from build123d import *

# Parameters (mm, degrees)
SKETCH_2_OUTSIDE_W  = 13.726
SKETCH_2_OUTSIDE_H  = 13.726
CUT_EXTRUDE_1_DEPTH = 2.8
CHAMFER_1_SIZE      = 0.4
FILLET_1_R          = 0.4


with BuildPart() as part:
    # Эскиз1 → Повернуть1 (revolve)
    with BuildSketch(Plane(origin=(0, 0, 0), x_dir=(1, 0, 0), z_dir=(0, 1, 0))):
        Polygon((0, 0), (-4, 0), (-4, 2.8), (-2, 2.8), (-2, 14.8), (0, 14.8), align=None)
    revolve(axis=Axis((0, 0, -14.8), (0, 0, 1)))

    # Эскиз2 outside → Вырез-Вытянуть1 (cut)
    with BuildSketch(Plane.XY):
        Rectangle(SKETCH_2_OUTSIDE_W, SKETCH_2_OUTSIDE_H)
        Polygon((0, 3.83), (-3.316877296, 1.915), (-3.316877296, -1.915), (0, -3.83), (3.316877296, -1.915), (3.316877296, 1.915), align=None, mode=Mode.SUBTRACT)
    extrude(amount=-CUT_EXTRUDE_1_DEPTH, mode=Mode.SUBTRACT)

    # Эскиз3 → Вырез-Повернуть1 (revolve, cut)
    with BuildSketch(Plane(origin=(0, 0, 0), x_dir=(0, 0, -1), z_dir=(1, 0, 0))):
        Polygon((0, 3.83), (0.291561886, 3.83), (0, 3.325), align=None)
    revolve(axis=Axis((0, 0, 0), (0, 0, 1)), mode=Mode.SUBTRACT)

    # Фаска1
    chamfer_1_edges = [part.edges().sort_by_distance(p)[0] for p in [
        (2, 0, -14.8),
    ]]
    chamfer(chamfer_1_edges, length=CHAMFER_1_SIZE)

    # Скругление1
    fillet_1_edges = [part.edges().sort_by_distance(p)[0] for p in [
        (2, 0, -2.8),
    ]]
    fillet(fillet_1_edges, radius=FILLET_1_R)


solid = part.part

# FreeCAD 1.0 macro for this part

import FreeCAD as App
import Part
import Sketcher
Q = App.Units.Quantity


def edges_at(feature, points):
    """Names of the edges that pass closest to the given points."""
    edges = feature.Shape.Edges
    near = lambda p: min(range(len(edges)), key=lambda i: edges[i].distToShape(Part.Vertex(*p))[0])
    return sorted({f"Edge{near(p) + 1}" for p in points})

doc = App.newDocument("Part")
body = doc.addObject("PartDesign::Body", "Body")

sketch1 = doc.addObject("Sketcher::SketchObject", "Sketch")
body.addObject(sketch1)
sketch1.AttachmentSupport = (doc.XZ_Plane, [""])
sketch1.MapMode = "FlatFace"
sketch1.addGeometry(Part.LineSegment(App.Vector(-4, 0, 0), App.Vector(0, 0, 0)), False)
sketch1.addGeometry(Part.LineSegment(App.Vector(0, 0, 0), App.Vector(0, -14.8, 0)), False)
sketch1.addGeometry(Part.LineSegment(App.Vector(0, -14.8, 0), App.Vector(-2, -14.8, 0)), False)
sketch1.addGeometry(Part.LineSegment(App.Vector(-2, -14.8, 0), App.Vector(-2, -2.8, 0)), False)
sketch1.addGeometry(Part.LineSegment(App.Vector(-2, -2.8, 0), App.Vector(-4, -2.8, 0)), False)
sketch1.addGeometry(Part.LineSegment(App.Vector(-4, -2.8, 0), App.Vector(-4, 0, 0)), False)
sketch1.addConstraint(Sketcher.Constraint("Coincident", 0, 2, 1, 1))
sketch1.addConstraint(Sketcher.Constraint("Coincident", 1, 2, 2, 1))
sketch1.addConstraint(Sketcher.Constraint("Coincident", 2, 2, 3, 1))
sketch1.addConstraint(Sketcher.Constraint("Coincident", 3, 2, 4, 1))
sketch1.addConstraint(Sketcher.Constraint("Coincident", 4, 2, 5, 1))
sketch1.addConstraint(Sketcher.Constraint("Coincident", 5, 2, 0, 1))
sketch1.addConstraint(Sketcher.Constraint("Horizontal", 0))
sketch1.addConstraint(Sketcher.Constraint("Vertical", 1))
sketch1.addConstraint(Sketcher.Constraint("Horizontal", 2))
sketch1.addConstraint(Sketcher.Constraint("Vertical", 3))
sketch1.addConstraint(Sketcher.Constraint("Horizontal", 4))
sketch1.addConstraint(Sketcher.Constraint("Vertical", 5))
sketch1.addConstraint(Sketcher.Constraint("Coincident", 0, 2, -1, 1))
sketch1.addConstraint(Sketcher.Constraint("Equal", 2, 4))
sketch1.addConstraint(Sketcher.Constraint("DistanceX", 0, 1, 0, 2, Q("4 mm")))
sketch1.addConstraint(Sketcher.Constraint("DistanceY", 3, 1, 3, 2, Q("12 mm")))
sketch1.addConstraint(Sketcher.Constraint("DistanceY", 1, 2, 1, 1, Q("14.8 mm")))
revolution = doc.addObject("PartDesign::Revolution", "Revolution")
body.addObject(revolution)
revolution.Profile = sketch1
revolution.ReferenceAxis = (sketch1, ["V_Axis"])
revolution.Angle = 360

sketch2 = doc.addObject("Sketcher::SketchObject", "Sketch001")
body.addObject(sketch2)
sketch2.AttachmentSupport = (doc.XY_Plane, [""])
sketch2.MapMode = "FlatFace"
sketch2.addGeometry(Part.LineSegment(App.Vector(-6.863, 6.863, 0), App.Vector(-6.863, -6.863, 0)), False)
sketch2.addGeometry(Part.LineSegment(App.Vector(-6.863, -6.863, 0), App.Vector(6.863, -6.863, 0)), False)
sketch2.addGeometry(Part.LineSegment(App.Vector(6.863, -6.863, 0), App.Vector(6.863, 6.863, 0)), False)
sketch2.addGeometry(Part.LineSegment(App.Vector(6.863, 6.863, 0), App.Vector(-6.863, 6.863, 0)), False)
sketch2.addGeometry(Part.LineSegment(App.Vector(-3.316877, 1.915, 0), App.Vector(0, 3.83, 0)), False)
sketch2.addGeometry(Part.LineSegment(App.Vector(0, 3.83, 0), App.Vector(3.316877, 1.915, 0)), False)
sketch2.addGeometry(Part.LineSegment(App.Vector(3.316877, 1.915, 0), App.Vector(3.316877, -1.915, 0)), False)
sketch2.addGeometry(Part.LineSegment(App.Vector(3.316877, -1.915, 0), App.Vector(0, -3.83, 0)), False)
sketch2.addGeometry(Part.LineSegment(App.Vector(0, -3.83, 0), App.Vector(-3.316877, -1.915, 0)), False)
sketch2.addGeometry(Part.LineSegment(App.Vector(-3.316877, -1.915, 0), App.Vector(-3.316877, 1.915, 0)), False)
sketch2.addConstraint(Sketcher.Constraint("Coincident", 0, 2, 1, 1))
sketch2.addConstraint(Sketcher.Constraint("Coincident", 1, 2, 2, 1))
sketch2.addConstraint(Sketcher.Constraint("Coincident", 2, 2, 3, 1))
sketch2.addConstraint(Sketcher.Constraint("Coincident", 3, 2, 0, 1))
sketch2.addConstraint(Sketcher.Constraint("Coincident", 4, 2, 5, 1))
sketch2.addConstraint(Sketcher.Constraint("Coincident", 5, 2, 6, 1))
sketch2.addConstraint(Sketcher.Constraint("Coincident", 6, 2, 7, 1))
sketch2.addConstraint(Sketcher.Constraint("Coincident", 7, 2, 8, 1))
sketch2.addConstraint(Sketcher.Constraint("Coincident", 8, 2, 9, 1))
sketch2.addConstraint(Sketcher.Constraint("Coincident", 9, 2, 4, 1))
sketch2.addConstraint(Sketcher.Constraint("Vertical", 0))
sketch2.addConstraint(Sketcher.Constraint("Horizontal", 1))
sketch2.addConstraint(Sketcher.Constraint("Vertical", 2))
sketch2.addConstraint(Sketcher.Constraint("Horizontal", 3))
sketch2.addConstraint(Sketcher.Constraint("Vertical", 6))
sketch2.addConstraint(Sketcher.Constraint("Vertical", 9))
sketch2.addConstraint(Sketcher.Constraint("Symmetric", 0, 2, 2, 2, -1, 1))
sketch2.addConstraint(Sketcher.Constraint("Symmetric", 4, 2, 7, 2, -1, 1))
sketch2.addConstraint(Sketcher.Constraint("Symmetric", 5, 2, 8, 2, -1, 1))
sketch2.addConstraint(Sketcher.Constraint("PointOnObject", 4, 2, -2))
sketch2.addConstraint(Sketcher.Constraint("Parallel", 4, 7))
sketch2.addConstraint(Sketcher.Constraint("Horizontal", 6, 2, 8, 2))
sketch2.addConstraint(Sketcher.Constraint("Equal", 3, 0))
sketch2.addConstraint(Sketcher.Constraint("Angle", 4, Q("30 deg")))
sketch2.addConstraint(Sketcher.Constraint("DistanceY", 6, 2, 6, 1, Q("3.83 mm")))
sketch2.addConstraint(Sketcher.Constraint("Distance", 4, Q("3.83 mm")))
sketch2.addConstraint(Sketcher.Constraint("DistanceX", 1, 1, 1, 2, Q("13.726 mm")))
pocket1 = doc.addObject("PartDesign::Pocket", "Pocket")
body.addObject(pocket1)
pocket1.Profile = sketch2
pocket1.Length = 2.8

sketch3 = doc.addObject("Sketcher::SketchObject", "Sketch002")
body.addObject(sketch3)
sketch3.AttachmentSupport = (doc.YZ_Plane, [""])
sketch3.MapMode = "FlatFace"
sketch3.addGeometry(Part.LineSegment(App.Vector(3.83, -0.291562, 0), App.Vector(3.83, 0, 0)), False)
sketch3.addGeometry(Part.LineSegment(App.Vector(3.83, 0, 0), App.Vector(3.325, 0, 0)), False)
sketch3.addGeometry(Part.LineSegment(App.Vector(3.325, 0, 0), App.Vector(3.83, -0.291562, 0)), False)
sketch3.addConstraint(Sketcher.Constraint("Coincident", 0, 2, 1, 1))
sketch3.addConstraint(Sketcher.Constraint("Coincident", 1, 2, 2, 1))
sketch3.addConstraint(Sketcher.Constraint("Coincident", 2, 2, 0, 1))
sketch3.addConstraint(Sketcher.Constraint("Vertical", 0))
sketch3.addConstraint(Sketcher.Constraint("Horizontal", 1))
sketch3.addConstraint(Sketcher.Constraint("PointOnObject", 0, 2, -1))
sketch3.addConstraint(Sketcher.Constraint("Angle", 2, Q("-30 deg")))
sketch3.addConstraint(Sketcher.Constraint("DistanceX", 1, 2, 1, 1, Q("0.505 mm")))
sketch3.addConstraint(Sketcher.Constraint("DistanceX", -1, 1, 0, 2, Q("3.83 mm")))
groove = doc.addObject("PartDesign::Groove", "Groove")
body.addObject(groove)
groove.Profile = sketch3
groove.ReferenceAxis = (sketch3, ["V_Axis"])
groove.Angle = 360
doc.recompute()

chamfer = doc.addObject("PartDesign::Chamfer", "Chamfer")
body.addObject(chamfer)
chamfer.Base = (groove, edges_at(groove, [(2, 0, -14.8)]))
chamfer.Size = 0.4
doc.recompute()

fillet = doc.addObject("PartDesign::Fillet", "Fillet")
body.addObject(fillet)
fillet.Base = (chamfer, edges_at(chamfer, [(2, 0, -2.8)]))
fillet.Radius = 0.4

doc.recompute()
